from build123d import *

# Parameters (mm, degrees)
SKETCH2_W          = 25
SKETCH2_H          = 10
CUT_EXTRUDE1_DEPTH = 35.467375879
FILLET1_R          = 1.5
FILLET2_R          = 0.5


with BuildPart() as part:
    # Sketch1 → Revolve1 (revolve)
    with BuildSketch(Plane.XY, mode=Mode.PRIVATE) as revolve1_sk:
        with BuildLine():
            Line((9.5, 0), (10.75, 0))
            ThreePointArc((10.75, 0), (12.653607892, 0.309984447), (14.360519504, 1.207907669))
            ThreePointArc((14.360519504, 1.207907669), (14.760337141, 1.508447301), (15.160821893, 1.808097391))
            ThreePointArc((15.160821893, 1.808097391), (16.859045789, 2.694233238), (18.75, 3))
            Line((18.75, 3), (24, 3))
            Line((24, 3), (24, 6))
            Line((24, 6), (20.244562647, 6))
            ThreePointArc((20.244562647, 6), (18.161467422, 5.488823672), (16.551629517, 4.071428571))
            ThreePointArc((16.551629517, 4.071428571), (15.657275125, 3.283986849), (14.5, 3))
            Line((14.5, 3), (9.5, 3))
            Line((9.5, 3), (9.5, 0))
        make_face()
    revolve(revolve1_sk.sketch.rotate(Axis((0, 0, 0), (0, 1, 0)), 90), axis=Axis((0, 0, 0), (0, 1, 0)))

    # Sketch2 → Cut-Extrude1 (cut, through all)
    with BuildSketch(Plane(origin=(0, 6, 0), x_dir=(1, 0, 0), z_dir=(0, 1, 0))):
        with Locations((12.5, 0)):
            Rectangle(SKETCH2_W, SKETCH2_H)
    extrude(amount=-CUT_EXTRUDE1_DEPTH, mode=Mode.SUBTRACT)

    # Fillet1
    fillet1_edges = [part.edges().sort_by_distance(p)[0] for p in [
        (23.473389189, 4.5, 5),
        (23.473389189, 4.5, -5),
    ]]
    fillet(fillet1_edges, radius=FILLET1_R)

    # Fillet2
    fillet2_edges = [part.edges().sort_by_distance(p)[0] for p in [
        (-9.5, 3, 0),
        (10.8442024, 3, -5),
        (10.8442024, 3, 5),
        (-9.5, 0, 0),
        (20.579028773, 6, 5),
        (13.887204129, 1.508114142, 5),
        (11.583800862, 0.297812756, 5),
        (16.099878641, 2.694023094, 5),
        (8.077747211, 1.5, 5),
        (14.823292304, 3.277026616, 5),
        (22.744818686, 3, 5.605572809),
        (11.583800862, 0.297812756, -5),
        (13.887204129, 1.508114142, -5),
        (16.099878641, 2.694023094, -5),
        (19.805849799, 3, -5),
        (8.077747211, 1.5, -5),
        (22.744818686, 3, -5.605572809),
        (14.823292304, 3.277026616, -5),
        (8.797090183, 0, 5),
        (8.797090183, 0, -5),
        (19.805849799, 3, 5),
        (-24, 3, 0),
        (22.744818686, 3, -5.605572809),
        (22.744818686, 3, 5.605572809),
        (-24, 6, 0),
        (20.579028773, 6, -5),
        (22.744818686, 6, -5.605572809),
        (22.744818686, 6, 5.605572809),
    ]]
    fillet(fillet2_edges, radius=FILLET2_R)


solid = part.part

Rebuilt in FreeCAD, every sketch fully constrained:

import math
import FreeCAD as App
import Part
import Sketcher

V = App.Vector


def edges_at(feature, points):
    """Names of the edges that pass closest to the given points."""
    edges = feature.Shape.Edges
    near = lambda p: min(range(len(edges)), key=lambda i: edges[i].distToShape(Part.Vertex(*p))[0])
    return sorted({f"Edge{near(p) + 1}" for p in points})


def add_polygon(sketch, points):
    """Adds a closed chain of lines whose ends are joined by coincident constraints."""
    first, n = sketch.GeometryCount, len(points)
    for a, b in zip(points, points[1:] + points[:1]):
        sketch.addGeometry(Part.LineSegment(App.Vector(*a, 0), App.Vector(*b, 0)), False)
    for i in range(n):
        sketch.addConstraint(Sketcher.Constraint("Coincident", first + i, 2, first + (i + 1) % n, 1))

doc = App.newDocument("Part")
params = doc.addObject("Spreadsheet::Sheet", "Params")
for row, (alias, value) in enumerate([
    ("sketch1_radius", "6 mm"),
    ("sketch1_radius2", "4.5 mm"),
    ("sketch1_radius3", "2.5 mm"),
    ("sketch1_width", "5 mm"),
    ("sketch1_width2", "1.25 mm"),
    ("revolution_angle", "360 deg"),
    ("sketch2_width", "25 mm"),
    ("sketch2_height", "10 mm"),
    ("fillet_radius", "1.5 mm"),
    ("fillet2_radius", "0.5 mm"),
], start=1):
    params.set(f"A{row}", alias)
    params.set(f"B{row}", "=" + value)
    params.setAlias(f"B{row}", alias)

body = doc.addObject("PartDesign::Body", "Body")

sketch1 = doc.addObject("Sketcher::SketchObject", "Sketch")
body.addObject(sketch1)
sketch1.AttachmentSupport = (doc.XY_Plane, [""])
sketch1.MapMode = "FlatFace"
sketch1.addGeometry([
    Part.LineSegment(V(9.5, 0, 0), V(10.75, 0, 0)),
    Part.ArcOfCircle(Part.Circle(V(10.75, 6, 0), V(0, 0, 1), 6), math.radians(-90), math.radians(-53.004432)),
    Part.ArcOfCircle(Part.Circle(V(149.75507, -178.495647, 0), V(0, 0, 1), 225.000115), math.radians(126.74083), math.radians(126.995568)),
    Part.ArcOfCircle(Part.Circle(V(18.75, -3, 0), V(0, 0, 1), 6), math.radians(90), math.radians(126.74083)),
    Part.LineSegment(V(18.75, 3, 0), V(24, 3, 0)),
    Part.LineSegment(V(24, 3, 0), V(24, 6, 0)),
    Part.LineSegment(V(24, 6, 0), V(20.244563, 6, 0)),
    Part.ArcOfCircle(Part.Circle(V(20.244563, 1.5, 0), V(0, 0, 1), 4.5), math.radians(90), math.radians(145.150095)),
    Part.ArcOfCircle(Part.Circle(V(14.5, 5.5, 0), V(0, 0, 1), 2.5), math.radians(-90), math.radians(-34.849905)),
    Part.LineSegment(V(14.5, 3, 0), V(9.5, 3, 0)),
    Part.LineSegment(V(9.5, 3, 0), V(9.5, 0, 0)),
], False)
sketch1.addConstraint([
    Sketcher.Constraint("Tangent", 0, 2, 1, 1),
    Sketcher.Constraint("Tangent", 1, 2, 2, 2),
    Sketcher.Constraint("Tangent", 2, 1, 3, 2),
    Sketcher.Constraint("Tangent", 3, 1, 4, 1),
    Sketcher.Constraint("Coincident", 4, 2, 5, 1),
    Sketcher.Constraint("Coincident", 5, 2, 6, 1),
    Sketcher.Constraint("Tangent", 6, 2, 7, 1),
    Sketcher.Constraint("Tangent", 7, 2, 8, 2),
    Sketcher.Constraint("Tangent", 8, 1, 9, 1),
    Sketcher.Constraint("Coincident", 9, 2, 10, 1),
    Sketcher.Constraint("Coincident", 10, 2, 0, 1),
    Sketcher.Constraint("Horizontal", 0),
    Sketcher.Constraint("Horizontal", 4),
    Sketcher.Constraint("Vertical", 5),
    Sketcher.Constraint("Horizontal", 6),
    Sketcher.Constraint("Horizontal", 9),
    Sketcher.Constraint("Vertical", 10),
    Sketcher.Constraint("Equal", 1, 3),
    Sketcher.Constraint("PointOnObject", 0, 2, -1),
    Sketcher.Constraint("Horizontal", 1, 3, 5, 2),
    Sketcher.Constraint("Horizontal", 4, 2, 8, 1),
    Sketcher.Constraint("Equal", 5, 10),
    Sketcher.Constraint("Radius", 1, 6.0),
    Sketcher.Constraint("Radius", 7, 4.5),
    Sketcher.Constraint("Radius", 8, 2.5),
    Sketcher.Constraint("DistanceX", 9, 2, 9, 1, 5.0),
    Sketcher.Constraint("DistanceX", -1, 1, 4, 2, 24.0),
    Sketcher.Constraint("DistanceX", 1, 3, 3, 3, 8.0),
    Sketcher.Constraint("DistanceX", 0, 1, 0, 2, 1.25),
    Sketcher.Constraint("DistanceX", 4, 1, 4, 2, 5.25),
    Sketcher.Constraint("Radius", 2, 225.000115),
])
sketch1.setExpression("Constraints[22]", "Params.sketch1_radius")
sketch1.setExpression("Constraints[23]", "Params.sketch1_radius2")
sketch1.setExpression("Constraints[24]", "Params.sketch1_radius3")
sketch1.setExpression("Constraints[25]", "Params.sketch1_width")
sketch1.setExpression("Constraints[28]", "Params.sketch1_width2")
revolution = doc.addObject("PartDesign::Revolution", "Revolution")
body.addObject(revolution)
revolution.Profile = sketch1
revolution.ReferenceAxis = (sketch1, ["V_Axis"])
revolution.setExpression("Angle", "Params.revolution_angle")

sketch2 = doc.addObject("Sketcher::SketchObject", "Sketch001")
body.addObject(sketch2)
sketch2.AttachmentSupport = (doc.XZ_Plane, [""])
sketch2.MapMode = "FlatFace"
sketch2.AttachmentOffset = App.Placement(V(0, 0, -6), App.Rotation())
add_polygon(sketch2, [(0, -5), (0, 5), (25, 5), (25, -5)])
sketch2.addConstraint([
    Sketcher.Constraint("Vertical", 0),
    Sketcher.Constraint("Horizontal", 1),
    Sketcher.Constraint("Vertical", 2),
    Sketcher.Constraint("Horizontal", 3),
    Sketcher.Constraint("Symmetric", 0, 2, 3, 2, -1, 1),
    Sketcher.Constraint("DistanceX", 1, 1, 1, 2, 25.0),
    Sketcher.Constraint("DistanceY", 0, 1, 0, 2, 10.0),
])
sketch2.setExpression("Constraints[9]", "Params.sketch2_width")
sketch2.setExpression("Constraints[10]", "Params.sketch2_height")
pocket1 = doc.addObject("PartDesign::Pocket", "Pocket")
body.addObject(pocket1)
pocket1.Profile = sketch2
pocket1.Type = "ThroughAll"
pocket1.Reversed = True
doc.recompute()

fillet = doc.addObject("PartDesign::Fillet", "Fillet")
body.addObject(fillet)
fillet.Base = (pocket1, edges_at(pocket1, [(23.473, 4.5, 5), (23.473, 4.5, -5)]))
fillet.setExpression("Radius", "Params.fillet_radius")
doc.recompute()

fillet2 = doc.addObject("PartDesign::Fillet", "Fillet001")
body.addObject(fillet2)
fillet2.Base = (fillet, ["Edge1"])
fillet2.UseAllEdges = True
fillet2.setExpression("Radius", "Params.fillet2_radius")

doc.recompute()
